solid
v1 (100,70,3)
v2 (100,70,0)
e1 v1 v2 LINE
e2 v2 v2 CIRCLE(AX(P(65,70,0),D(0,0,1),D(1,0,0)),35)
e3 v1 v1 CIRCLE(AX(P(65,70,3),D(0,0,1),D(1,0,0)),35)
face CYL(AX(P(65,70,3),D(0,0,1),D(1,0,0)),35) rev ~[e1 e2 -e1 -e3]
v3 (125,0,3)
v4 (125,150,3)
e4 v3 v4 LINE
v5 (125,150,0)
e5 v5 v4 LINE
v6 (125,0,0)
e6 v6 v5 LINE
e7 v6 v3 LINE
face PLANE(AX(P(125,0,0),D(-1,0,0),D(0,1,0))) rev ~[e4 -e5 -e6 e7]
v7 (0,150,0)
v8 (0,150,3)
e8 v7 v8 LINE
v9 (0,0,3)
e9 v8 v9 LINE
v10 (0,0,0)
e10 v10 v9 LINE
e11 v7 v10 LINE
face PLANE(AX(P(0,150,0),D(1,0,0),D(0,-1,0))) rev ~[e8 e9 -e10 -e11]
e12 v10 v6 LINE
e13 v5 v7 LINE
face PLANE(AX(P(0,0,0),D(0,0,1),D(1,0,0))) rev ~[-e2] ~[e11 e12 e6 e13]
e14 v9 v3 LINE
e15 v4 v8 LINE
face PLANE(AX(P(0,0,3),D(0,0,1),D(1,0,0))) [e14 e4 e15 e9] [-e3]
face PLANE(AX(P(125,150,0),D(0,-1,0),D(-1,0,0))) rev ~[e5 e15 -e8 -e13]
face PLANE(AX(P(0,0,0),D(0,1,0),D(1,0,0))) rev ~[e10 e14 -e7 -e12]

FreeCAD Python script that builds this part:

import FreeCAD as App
import Part
import Sketcher

V = App.Vector

doc = App.newDocument("Part")
body = doc.addObject("PartDesign::Body", "Body")

# Sketch on XY plane
sketch1 = body.newObject("Sketcher::SketchObject", "Sketch")
sketch1.AttachmentSupport = (doc.getObject("XY_Plane"), [""])
sketch1.MapMode = "FlatFace"
sketch1.addGeometry([
    Part.LineSegment(V(0, 150, 0), V(0, 0, 0)),
    Part.LineSegment(V(0, 0, 0), V(125, 0, 0)),
    Part.LineSegment(V(125, 0, 0), V(125, 150, 0)),
    Part.LineSegment(V(125, 150, 0), V(0, 150, 0)),
], False)
sketch1.addConstraint([
    Sketcher.Constraint("Coincident", 0, 2, 1, 1),
    Sketcher.Constraint("Coincident", 1, 2, 2, 1),
    Sketcher.Constraint("Coincident", 2, 2, 3, 1),
    Sketcher.Constraint("Coincident", 3, 2, 0, 1),
    Sketcher.Constraint("Vertical", 0),
    Sketcher.Constraint("Horizontal", 1),
    Sketcher.Constraint("Vertical", 2),
    Sketcher.Constraint("Horizontal", 3),
    Sketcher.Constraint("Coincident", 0, 2, -1, 1),
    Sketcher.Constraint("DistanceX", 1, 1, 1, 2, 125.0),
    Sketcher.Constraint("DistanceY", 0, 2, 0, 1, 150.0),
])
pad1 = body.newObject("PartDesign::Pad", "Pad")
pad1.Profile = sketch1
pad1.Length = 3

# Sketch on XY plane
sketch2 = body.newObject("Sketcher::SketchObject", "Sketch001")
sketch2.AttachmentSupport = (doc.getObject("XY_Plane"), [""])
sketch2.MapMode = "FlatFace"
sketch2.AttachmentOffset = App.Placement(V(0, 0, 3), App.Rotation())
sketch2.addGeometry(Part.Circle(V(65, 70, 0), V(0, 0, 1), 35), False)
sketch2.addConstraint([
    Sketcher.Constraint("Diameter", 0, 70.0),
    Sketcher.Constraint("DistanceY", -1, 1, 0, 3, 70.0),
    Sketcher.Constraint("DistanceX", -1, 1, 0, 3, 65.0),
])
pocket1 = body.newObject("PartDesign::Pocket", "Pocket")
pocket1.Profile = sketch2
pocket1.Length = 3

doc.recompute()
